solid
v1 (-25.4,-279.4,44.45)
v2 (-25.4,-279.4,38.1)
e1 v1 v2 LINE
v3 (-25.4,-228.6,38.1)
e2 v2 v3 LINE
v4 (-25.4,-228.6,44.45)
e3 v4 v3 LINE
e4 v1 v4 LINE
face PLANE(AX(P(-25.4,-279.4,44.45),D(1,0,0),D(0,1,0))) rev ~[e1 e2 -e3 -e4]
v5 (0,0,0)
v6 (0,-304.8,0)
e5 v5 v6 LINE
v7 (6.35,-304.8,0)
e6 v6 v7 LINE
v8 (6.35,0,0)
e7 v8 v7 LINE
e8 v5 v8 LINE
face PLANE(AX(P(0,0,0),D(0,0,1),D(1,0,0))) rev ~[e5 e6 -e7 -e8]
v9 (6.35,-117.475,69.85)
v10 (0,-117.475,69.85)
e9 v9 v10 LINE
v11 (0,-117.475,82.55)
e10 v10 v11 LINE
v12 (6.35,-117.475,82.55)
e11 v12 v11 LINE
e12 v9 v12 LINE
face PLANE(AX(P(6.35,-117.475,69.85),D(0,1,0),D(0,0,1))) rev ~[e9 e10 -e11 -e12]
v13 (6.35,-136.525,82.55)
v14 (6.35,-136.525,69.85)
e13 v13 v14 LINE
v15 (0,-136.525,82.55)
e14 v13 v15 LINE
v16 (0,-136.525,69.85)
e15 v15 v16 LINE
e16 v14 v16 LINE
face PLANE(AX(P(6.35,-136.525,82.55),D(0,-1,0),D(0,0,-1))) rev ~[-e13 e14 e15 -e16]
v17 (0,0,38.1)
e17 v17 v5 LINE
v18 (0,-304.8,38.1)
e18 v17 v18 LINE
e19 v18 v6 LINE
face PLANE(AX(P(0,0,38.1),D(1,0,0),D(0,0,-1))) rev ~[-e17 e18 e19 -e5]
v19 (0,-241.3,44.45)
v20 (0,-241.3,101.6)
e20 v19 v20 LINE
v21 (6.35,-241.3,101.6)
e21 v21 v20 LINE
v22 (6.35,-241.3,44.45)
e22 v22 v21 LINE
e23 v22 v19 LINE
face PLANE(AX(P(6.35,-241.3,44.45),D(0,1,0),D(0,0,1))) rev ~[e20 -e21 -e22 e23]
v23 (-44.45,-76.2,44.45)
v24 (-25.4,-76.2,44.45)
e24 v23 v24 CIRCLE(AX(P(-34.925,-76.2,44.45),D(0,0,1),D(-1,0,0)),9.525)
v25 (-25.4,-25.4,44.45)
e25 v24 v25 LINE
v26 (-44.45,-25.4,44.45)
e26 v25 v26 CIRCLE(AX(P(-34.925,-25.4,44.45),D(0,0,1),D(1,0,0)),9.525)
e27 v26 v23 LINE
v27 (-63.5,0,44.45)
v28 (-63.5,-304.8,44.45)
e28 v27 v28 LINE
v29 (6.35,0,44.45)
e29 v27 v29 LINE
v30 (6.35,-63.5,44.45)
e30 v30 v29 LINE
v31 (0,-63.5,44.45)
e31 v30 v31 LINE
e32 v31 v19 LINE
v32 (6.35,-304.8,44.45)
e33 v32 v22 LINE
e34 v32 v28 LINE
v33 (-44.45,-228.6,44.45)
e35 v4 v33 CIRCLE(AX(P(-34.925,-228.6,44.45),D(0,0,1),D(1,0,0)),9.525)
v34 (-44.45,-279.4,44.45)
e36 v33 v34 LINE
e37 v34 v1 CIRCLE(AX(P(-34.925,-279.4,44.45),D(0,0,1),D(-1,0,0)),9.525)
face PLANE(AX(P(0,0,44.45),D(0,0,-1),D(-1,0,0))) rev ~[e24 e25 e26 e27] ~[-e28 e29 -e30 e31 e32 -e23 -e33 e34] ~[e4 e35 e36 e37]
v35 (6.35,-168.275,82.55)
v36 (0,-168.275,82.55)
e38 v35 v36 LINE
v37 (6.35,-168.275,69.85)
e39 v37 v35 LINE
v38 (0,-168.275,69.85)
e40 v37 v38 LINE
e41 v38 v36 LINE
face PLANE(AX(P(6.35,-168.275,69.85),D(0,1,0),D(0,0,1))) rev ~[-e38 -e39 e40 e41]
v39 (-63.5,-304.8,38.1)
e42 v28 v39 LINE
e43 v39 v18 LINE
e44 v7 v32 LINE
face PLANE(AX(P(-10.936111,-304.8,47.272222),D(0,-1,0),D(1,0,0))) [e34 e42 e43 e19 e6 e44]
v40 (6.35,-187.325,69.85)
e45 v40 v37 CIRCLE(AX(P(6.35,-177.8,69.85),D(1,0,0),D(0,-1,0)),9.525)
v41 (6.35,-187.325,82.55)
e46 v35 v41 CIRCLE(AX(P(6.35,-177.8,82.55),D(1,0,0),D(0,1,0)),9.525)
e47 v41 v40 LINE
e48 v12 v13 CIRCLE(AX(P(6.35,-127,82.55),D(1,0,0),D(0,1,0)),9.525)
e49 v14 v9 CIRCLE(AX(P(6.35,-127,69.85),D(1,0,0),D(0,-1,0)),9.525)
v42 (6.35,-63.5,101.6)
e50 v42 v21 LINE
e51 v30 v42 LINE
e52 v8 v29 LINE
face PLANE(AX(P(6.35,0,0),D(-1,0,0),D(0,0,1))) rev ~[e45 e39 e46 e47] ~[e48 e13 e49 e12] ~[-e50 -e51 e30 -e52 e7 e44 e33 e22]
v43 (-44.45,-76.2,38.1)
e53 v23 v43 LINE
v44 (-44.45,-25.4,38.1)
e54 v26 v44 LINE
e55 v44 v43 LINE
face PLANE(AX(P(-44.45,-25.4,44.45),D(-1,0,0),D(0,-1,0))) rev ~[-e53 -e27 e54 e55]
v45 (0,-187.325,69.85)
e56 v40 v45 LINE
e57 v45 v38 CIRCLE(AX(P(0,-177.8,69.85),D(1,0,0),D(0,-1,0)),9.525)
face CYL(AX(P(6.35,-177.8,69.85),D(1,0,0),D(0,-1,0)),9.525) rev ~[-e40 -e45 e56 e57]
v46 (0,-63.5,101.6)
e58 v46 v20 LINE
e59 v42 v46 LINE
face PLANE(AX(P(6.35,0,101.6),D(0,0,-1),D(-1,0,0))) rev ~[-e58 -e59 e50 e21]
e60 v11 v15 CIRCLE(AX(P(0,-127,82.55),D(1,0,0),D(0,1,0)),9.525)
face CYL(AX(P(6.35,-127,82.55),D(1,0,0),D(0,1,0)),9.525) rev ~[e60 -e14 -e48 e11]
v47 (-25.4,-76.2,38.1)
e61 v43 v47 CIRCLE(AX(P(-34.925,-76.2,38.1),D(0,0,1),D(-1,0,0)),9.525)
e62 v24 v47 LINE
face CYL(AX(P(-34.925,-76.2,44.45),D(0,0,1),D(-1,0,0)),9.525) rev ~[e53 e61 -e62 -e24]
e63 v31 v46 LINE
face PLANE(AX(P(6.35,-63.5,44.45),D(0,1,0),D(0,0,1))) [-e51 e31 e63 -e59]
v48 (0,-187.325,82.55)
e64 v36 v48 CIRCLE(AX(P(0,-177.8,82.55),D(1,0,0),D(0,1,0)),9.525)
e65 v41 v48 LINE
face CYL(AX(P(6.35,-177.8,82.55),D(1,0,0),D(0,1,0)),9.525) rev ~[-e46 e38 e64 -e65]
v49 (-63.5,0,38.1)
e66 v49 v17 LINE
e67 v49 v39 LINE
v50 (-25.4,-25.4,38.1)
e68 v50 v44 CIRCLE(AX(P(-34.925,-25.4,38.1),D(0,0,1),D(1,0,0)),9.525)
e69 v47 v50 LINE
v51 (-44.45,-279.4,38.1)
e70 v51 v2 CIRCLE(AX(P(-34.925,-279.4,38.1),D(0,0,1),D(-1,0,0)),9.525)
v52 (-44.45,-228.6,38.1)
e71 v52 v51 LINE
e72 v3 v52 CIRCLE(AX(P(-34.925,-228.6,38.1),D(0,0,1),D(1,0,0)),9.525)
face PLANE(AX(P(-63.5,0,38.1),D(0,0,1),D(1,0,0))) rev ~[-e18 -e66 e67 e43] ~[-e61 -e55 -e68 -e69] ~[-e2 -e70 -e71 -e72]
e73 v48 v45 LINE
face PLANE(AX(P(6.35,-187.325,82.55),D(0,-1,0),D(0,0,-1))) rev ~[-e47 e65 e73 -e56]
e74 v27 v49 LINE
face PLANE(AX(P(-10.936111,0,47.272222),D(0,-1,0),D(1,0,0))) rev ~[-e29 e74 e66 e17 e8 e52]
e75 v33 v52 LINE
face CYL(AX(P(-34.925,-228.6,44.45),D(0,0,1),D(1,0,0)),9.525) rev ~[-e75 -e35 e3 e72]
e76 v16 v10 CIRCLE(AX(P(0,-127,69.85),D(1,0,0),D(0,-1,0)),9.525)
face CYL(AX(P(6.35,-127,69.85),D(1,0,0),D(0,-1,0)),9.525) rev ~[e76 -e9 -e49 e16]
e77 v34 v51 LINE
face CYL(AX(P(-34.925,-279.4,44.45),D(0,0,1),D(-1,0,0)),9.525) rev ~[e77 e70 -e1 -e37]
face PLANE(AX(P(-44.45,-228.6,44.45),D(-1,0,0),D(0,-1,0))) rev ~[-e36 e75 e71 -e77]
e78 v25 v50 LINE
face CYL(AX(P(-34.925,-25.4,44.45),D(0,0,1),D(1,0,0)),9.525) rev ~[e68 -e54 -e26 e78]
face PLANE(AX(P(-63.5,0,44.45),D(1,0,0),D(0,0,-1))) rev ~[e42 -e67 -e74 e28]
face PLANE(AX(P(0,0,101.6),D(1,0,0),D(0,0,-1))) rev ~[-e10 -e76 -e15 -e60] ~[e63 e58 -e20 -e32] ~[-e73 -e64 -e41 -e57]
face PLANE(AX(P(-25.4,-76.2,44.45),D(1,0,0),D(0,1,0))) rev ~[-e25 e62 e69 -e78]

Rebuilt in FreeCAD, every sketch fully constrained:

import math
import FreeCAD as App
import Part
import Sketcher
from FreeCAD import Vector
Q = App.Units.Quantity


def add_polygon(sketch, points):
    """Adds a closed chain of lines whose ends are joined by coincident constraints."""
    first, n = sketch.GeometryCount, len(points)
    for a, b in zip(points, points[1:] + points[:1]):
        sketch.addGeometry(Part.LineSegment(App.Vector(*a, 0), App.Vector(*b, 0)), False)
    for i in range(n):
        sketch.addConstraint(Sketcher.Constraint("Coincident", first + i, 2, first + (i + 1) % n, 1))

doc = App.newDocument("Part")
body = doc.addObject("PartDesign::Body", "Body")

# Sketch on XZ plane
sketch1 = doc.addObject("Sketcher::SketchObject", "Sketch")
body.addObject(sketch1)
sketch1.AttachmentSupport = (doc.XZ_Plane, [""])
sketch1.MapMode = "FlatFace"
add_polygon(sketch1, [(0, 38.1), (0, 0), (6.35, 0), (6.35, 101.6), (0, 101.6), (0, 44.45), (-63.5, 44.45), (-63.5, 38.1)])  # lines 0-7
sketch1.addConstraint([
    Sketcher.Constraint("Vertical", 0),
    Sketcher.Constraint("Horizontal", 1),
    Sketcher.Constraint("Vertical", 2),
    Sketcher.Constraint("Horizontal", 3),
    Sketcher.Constraint("Vertical", 4),
    Sketcher.Constraint("Horizontal", 5),
    Sketcher.Constraint("Vertical", 6),
    Sketcher.Constraint("Horizontal", 7),
    Sketcher.Constraint("Coincident", 0, 2, -1, 1),
    Sketcher.Constraint("PointOnObject", 3, 2, -2),
    Sketcher.Constraint("Equal", 3, 6),
    Sketcher.Constraint("DistanceY", 2, 1, 2, 2, Q("4 in")),
    Sketcher.Constraint("DistanceX", 5, 2, 5, 1, Q("2.5 in")),
    Sketcher.Constraint("DistanceY", 0, 2, 0, 1, Q("1.5 in")),
    Sketcher.Constraint("DistanceX", 1, 1, 1, 2, Q("0.25 in")),
])
pad1 = doc.addObject("PartDesign::Pad", "Pad")
body.addObject(pad1)
pad1.Profile = sketch1
pad1.Length = Q("12 in")

# Sketch on YZ plane
sketch2 = doc.addObject("Sketcher::SketchObject", "Sketch001")
body.addObject(sketch2)
sketch2.AttachmentSupport = (doc.YZ_Plane, [""])
sketch2.MapMode = "FlatFace"
sketch2.AttachmentOffset = App.Placement(Vector(0, 0, 0.25 * 25.4), App.Rotation())
add_polygon(sketch2, [(-304.8, 101.6), (-304.8, 44.45), (-241.3, 44.45), (-241.3, 101.6)])  # lines 0-3
add_polygon(sketch2, [(-63.5, 101.6), (-63.5, 44.45), (0, 44.45), (0, 101.6)])  # lines 4-7
sketch2.addGeometry(Part.LineSegment(Vector(-168.275, 69.85, 0), Vector(-168.275, 82.55, 0)), False)  # 8
sketch2.addGeometry(Part.ArcOfCircle(Part.Circle(Vector(-177.8, 82.55, 0), Vector(0, 0, 1), 9.525), math.radians(0), math.radians(180)), False)  # 9
sketch2.addGeometry(Part.LineSegment(Vector(-187.325, 82.55, 0), Vector(-187.325, 69.85, 0)), False)  # 10
sketch2.addGeometry(Part.ArcOfCircle(Part.Circle(Vector(-177.8, 69.85, 0), Vector(0, 0, 1), 9.525), math.radians(180), math.radians(360)), False)  # 11
sketch2.addGeometry(Part.ArcOfCircle(Part.Circle(Vector(-127, 82.55, 0), Vector(0, 0, 1), 9.525), math.radians(0), math.radians(180)), False)  # 12
sketch2.addGeometry(Part.LineSegment(Vector(-136.525, 82.55, 0), Vector(-136.525, 69.85, 0)), False)  # 13
sketch2.addGeometry(Part.ArcOfCircle(Part.Circle(Vector(-127, 69.85, 0), Vector(0, 0, 1), 9.525), math.radians(180), math.radians(360)), False)  # 14
sketch2.addGeometry(Part.LineSegment(Vector(-117.475, 69.85, 0), Vector(-117.475, 82.55, 0)), False)  # 15
sketch2.addConstraint([
    Sketcher.Constraint("Tangent", 8, 2, 9, 1),
    Sketcher.Constraint("Tangent", 9, 2, 10, 1),
    Sketcher.Constraint("Tangent", 10, 2, 11, 1),
    Sketcher.Constraint("Tangent", 11, 2, 8, 1),
    Sketcher.Constraint("Tangent", 12, 2, 13, 1),
    Sketcher.Constraint("Tangent", 13, 2, 14, 1),
    Sketcher.Constraint("Tangent", 14, 2, 15, 1),
    Sketcher.Constraint("Tangent", 15, 2, 12, 1),
    Sketcher.Constraint("Vertical", 0),
    Sketcher.Constraint("Horizontal", 1),
    Sketcher.Constraint("Vertical", 2),
    Sketcher.Constraint("Horizontal", 3),
    Sketcher.Constraint("Vertical", 4),
    Sketcher.Constraint("Horizontal", 5),
    Sketcher.Constraint("Vertical", 6),
    Sketcher.Constraint("Horizontal", 7),
    Sketcher.Constraint("Vertical", 8),
    Sketcher.Constraint("Vertical", 10),
    Sketcher.Constraint("Vertical", 13),
    Sketcher.Constraint("Vertical", 15),
    Sketcher.Constraint("Equal", 11, 12),
    Sketcher.Constraint("PointOnObject", 5, 2, -2),
    Sketcher.Constraint("Horizontal", 9, 3, 12, 3),
    Sketcher.Constraint("Horizontal", 11, 3, 14, 3),
    Sketcher.Constraint("Horizontal", 1, 2, 4, 2),
    Sketcher.Constraint("Horizontal", 3, 2, 6, 2),
    Sketcher.Constraint("Equal", 3, 5),
    Sketcher.Constraint("DistanceX", 1, 1, 1, 2, Q("2.5 in")),
    Sketcher.Constraint("DistanceY", 8, 1, 8, 2, Q("0.5 in")),
    Sketcher.Constraint("DistanceX", 9, 3, -1, 1, Q("7 in")),
    Sketcher.Constraint("DistanceX", 12, 3, -1, 1, Q("5 in")),
    Sketcher.Constraint("DistanceX", 0, 2, -1, 1, Q("12 in")),
    Sketcher.Constraint("DistanceY", -1, 1, 2, 2, Q("4 in")),
    Sketcher.Constraint("Radius", 9, Q("0.375 in")),
    Sketcher.Constraint("DistanceY", 0, 2, 11, 3, Q("1 in")),
    Sketcher.Constraint("DistanceY", 0, 2, 0, 1, Q("2.25 in")),
])
pocket1 = doc.addObject("PartDesign::Pocket", "Pocket")
body.addObject(pocket1)
pocket1.Profile = sketch2
pocket1.Type = "ThroughAll"

# Sketch on XY plane
sketch3 = doc.addObject("Sketcher::SketchObject", "Sketch002")
body.addObject(sketch3)
sketch3.AttachmentSupport = (doc.XY_Plane, [""])
sketch3.MapMode = "FlatFace"
sketch3.AttachmentOffset = App.Placement(Vector(0, 0, 1.75 * 25.4), App.Rotation())
sketch3.addGeometry([
    Part.LineSegment(Vector(-25.4, -279.4, 0), Vector(-25.4, -228.6, 0)),  # 0
    Part.ArcOfCircle(Part.Circle(Vector(-34.925, -228.6, 0), Vector(0, 0, 1), 9.525), math.radians(0), math.radians(180)),  # 1
    Part.LineSegment(Vector(-44.45, -228.6, 0), Vector(-44.45, -279.4, 0)),  # 2
    Part.ArcOfCircle(Part.Circle(Vector(-34.925, -279.4, 0), Vector(0, 0, 1), 9.525), math.radians(180), math.radians(360)),  # 3
    Part.ArcOfCircle(Part.Circle(Vector(-34.925, -76.2, 0), Vector(0, 0, 1), 9.525), math.radians(180), math.radians(360)),  # 4
    Part.LineSegment(Vector(-25.4, -76.2, 0), Vector(-25.4, -25.4, 0)),  # 5
    Part.ArcOfCircle(Part.Circle(Vector(-34.925, -25.4, 0), Vector(0, 0, 1), 9.525), math.radians(0), math.radians(180)),  # 6
    Part.LineSegment(Vector(-44.45, -25.4, 0), Vector(-44.45, -76.2, 0)),  # 7
], False)
sketch3.addConstraint([
    Sketcher.Constraint("Tangent", 0, 2, 1, 1),
    Sketcher.Constraint("Tangent", 1, 2, 2, 1),
    Sketcher.Constraint("Tangent", 2, 2, 3, 1),
    Sketcher.Constraint("Tangent", 3, 2, 0, 1),
    Sketcher.Constraint("Tangent", 4, 2, 5, 1),
    Sketcher.Constraint("Tangent", 5, 2, 6, 1),
    Sketcher.Constraint("Tangent", 6, 2, 7, 1),
    Sketcher.Constraint("Tangent", 7, 2, 4, 1),
    Sketcher.Constraint("Vertical", 0),
    Sketcher.Constraint("Vertical", 2),
    Sketcher.Constraint("Vertical", 5),
    Sketcher.Constraint("Vertical", 7),
    Sketcher.Constraint("Equal", 3, 4),
    Sketcher.Constraint("Vertical", 3, 3, 4, 3),
    Sketcher.Constraint("Equal", 2, 5),
    Sketcher.Constraint("DistanceY", 0, 1, 0, 2, Q("2 in")),
    Sketcher.Constraint("DistanceY", 1, 3, -1, 1, Q("9 in")),
    Sketcher.Constraint("DistanceY", 4, 3, -1, 1, Q("3 in")),
    Sketcher.Constraint("DistanceX", 0, 2, -1, 1, Q("1 in")),
    Sketcher.Constraint("Radius", 1, Q("0.375 in")),
])
pocket2 = doc.addObject("PartDesign::Pocket", "Pocket001")
body.addObject(pocket2)
pocket2.Profile = sketch3
pocket2.Type = "ThroughAll"

doc.recompute()
